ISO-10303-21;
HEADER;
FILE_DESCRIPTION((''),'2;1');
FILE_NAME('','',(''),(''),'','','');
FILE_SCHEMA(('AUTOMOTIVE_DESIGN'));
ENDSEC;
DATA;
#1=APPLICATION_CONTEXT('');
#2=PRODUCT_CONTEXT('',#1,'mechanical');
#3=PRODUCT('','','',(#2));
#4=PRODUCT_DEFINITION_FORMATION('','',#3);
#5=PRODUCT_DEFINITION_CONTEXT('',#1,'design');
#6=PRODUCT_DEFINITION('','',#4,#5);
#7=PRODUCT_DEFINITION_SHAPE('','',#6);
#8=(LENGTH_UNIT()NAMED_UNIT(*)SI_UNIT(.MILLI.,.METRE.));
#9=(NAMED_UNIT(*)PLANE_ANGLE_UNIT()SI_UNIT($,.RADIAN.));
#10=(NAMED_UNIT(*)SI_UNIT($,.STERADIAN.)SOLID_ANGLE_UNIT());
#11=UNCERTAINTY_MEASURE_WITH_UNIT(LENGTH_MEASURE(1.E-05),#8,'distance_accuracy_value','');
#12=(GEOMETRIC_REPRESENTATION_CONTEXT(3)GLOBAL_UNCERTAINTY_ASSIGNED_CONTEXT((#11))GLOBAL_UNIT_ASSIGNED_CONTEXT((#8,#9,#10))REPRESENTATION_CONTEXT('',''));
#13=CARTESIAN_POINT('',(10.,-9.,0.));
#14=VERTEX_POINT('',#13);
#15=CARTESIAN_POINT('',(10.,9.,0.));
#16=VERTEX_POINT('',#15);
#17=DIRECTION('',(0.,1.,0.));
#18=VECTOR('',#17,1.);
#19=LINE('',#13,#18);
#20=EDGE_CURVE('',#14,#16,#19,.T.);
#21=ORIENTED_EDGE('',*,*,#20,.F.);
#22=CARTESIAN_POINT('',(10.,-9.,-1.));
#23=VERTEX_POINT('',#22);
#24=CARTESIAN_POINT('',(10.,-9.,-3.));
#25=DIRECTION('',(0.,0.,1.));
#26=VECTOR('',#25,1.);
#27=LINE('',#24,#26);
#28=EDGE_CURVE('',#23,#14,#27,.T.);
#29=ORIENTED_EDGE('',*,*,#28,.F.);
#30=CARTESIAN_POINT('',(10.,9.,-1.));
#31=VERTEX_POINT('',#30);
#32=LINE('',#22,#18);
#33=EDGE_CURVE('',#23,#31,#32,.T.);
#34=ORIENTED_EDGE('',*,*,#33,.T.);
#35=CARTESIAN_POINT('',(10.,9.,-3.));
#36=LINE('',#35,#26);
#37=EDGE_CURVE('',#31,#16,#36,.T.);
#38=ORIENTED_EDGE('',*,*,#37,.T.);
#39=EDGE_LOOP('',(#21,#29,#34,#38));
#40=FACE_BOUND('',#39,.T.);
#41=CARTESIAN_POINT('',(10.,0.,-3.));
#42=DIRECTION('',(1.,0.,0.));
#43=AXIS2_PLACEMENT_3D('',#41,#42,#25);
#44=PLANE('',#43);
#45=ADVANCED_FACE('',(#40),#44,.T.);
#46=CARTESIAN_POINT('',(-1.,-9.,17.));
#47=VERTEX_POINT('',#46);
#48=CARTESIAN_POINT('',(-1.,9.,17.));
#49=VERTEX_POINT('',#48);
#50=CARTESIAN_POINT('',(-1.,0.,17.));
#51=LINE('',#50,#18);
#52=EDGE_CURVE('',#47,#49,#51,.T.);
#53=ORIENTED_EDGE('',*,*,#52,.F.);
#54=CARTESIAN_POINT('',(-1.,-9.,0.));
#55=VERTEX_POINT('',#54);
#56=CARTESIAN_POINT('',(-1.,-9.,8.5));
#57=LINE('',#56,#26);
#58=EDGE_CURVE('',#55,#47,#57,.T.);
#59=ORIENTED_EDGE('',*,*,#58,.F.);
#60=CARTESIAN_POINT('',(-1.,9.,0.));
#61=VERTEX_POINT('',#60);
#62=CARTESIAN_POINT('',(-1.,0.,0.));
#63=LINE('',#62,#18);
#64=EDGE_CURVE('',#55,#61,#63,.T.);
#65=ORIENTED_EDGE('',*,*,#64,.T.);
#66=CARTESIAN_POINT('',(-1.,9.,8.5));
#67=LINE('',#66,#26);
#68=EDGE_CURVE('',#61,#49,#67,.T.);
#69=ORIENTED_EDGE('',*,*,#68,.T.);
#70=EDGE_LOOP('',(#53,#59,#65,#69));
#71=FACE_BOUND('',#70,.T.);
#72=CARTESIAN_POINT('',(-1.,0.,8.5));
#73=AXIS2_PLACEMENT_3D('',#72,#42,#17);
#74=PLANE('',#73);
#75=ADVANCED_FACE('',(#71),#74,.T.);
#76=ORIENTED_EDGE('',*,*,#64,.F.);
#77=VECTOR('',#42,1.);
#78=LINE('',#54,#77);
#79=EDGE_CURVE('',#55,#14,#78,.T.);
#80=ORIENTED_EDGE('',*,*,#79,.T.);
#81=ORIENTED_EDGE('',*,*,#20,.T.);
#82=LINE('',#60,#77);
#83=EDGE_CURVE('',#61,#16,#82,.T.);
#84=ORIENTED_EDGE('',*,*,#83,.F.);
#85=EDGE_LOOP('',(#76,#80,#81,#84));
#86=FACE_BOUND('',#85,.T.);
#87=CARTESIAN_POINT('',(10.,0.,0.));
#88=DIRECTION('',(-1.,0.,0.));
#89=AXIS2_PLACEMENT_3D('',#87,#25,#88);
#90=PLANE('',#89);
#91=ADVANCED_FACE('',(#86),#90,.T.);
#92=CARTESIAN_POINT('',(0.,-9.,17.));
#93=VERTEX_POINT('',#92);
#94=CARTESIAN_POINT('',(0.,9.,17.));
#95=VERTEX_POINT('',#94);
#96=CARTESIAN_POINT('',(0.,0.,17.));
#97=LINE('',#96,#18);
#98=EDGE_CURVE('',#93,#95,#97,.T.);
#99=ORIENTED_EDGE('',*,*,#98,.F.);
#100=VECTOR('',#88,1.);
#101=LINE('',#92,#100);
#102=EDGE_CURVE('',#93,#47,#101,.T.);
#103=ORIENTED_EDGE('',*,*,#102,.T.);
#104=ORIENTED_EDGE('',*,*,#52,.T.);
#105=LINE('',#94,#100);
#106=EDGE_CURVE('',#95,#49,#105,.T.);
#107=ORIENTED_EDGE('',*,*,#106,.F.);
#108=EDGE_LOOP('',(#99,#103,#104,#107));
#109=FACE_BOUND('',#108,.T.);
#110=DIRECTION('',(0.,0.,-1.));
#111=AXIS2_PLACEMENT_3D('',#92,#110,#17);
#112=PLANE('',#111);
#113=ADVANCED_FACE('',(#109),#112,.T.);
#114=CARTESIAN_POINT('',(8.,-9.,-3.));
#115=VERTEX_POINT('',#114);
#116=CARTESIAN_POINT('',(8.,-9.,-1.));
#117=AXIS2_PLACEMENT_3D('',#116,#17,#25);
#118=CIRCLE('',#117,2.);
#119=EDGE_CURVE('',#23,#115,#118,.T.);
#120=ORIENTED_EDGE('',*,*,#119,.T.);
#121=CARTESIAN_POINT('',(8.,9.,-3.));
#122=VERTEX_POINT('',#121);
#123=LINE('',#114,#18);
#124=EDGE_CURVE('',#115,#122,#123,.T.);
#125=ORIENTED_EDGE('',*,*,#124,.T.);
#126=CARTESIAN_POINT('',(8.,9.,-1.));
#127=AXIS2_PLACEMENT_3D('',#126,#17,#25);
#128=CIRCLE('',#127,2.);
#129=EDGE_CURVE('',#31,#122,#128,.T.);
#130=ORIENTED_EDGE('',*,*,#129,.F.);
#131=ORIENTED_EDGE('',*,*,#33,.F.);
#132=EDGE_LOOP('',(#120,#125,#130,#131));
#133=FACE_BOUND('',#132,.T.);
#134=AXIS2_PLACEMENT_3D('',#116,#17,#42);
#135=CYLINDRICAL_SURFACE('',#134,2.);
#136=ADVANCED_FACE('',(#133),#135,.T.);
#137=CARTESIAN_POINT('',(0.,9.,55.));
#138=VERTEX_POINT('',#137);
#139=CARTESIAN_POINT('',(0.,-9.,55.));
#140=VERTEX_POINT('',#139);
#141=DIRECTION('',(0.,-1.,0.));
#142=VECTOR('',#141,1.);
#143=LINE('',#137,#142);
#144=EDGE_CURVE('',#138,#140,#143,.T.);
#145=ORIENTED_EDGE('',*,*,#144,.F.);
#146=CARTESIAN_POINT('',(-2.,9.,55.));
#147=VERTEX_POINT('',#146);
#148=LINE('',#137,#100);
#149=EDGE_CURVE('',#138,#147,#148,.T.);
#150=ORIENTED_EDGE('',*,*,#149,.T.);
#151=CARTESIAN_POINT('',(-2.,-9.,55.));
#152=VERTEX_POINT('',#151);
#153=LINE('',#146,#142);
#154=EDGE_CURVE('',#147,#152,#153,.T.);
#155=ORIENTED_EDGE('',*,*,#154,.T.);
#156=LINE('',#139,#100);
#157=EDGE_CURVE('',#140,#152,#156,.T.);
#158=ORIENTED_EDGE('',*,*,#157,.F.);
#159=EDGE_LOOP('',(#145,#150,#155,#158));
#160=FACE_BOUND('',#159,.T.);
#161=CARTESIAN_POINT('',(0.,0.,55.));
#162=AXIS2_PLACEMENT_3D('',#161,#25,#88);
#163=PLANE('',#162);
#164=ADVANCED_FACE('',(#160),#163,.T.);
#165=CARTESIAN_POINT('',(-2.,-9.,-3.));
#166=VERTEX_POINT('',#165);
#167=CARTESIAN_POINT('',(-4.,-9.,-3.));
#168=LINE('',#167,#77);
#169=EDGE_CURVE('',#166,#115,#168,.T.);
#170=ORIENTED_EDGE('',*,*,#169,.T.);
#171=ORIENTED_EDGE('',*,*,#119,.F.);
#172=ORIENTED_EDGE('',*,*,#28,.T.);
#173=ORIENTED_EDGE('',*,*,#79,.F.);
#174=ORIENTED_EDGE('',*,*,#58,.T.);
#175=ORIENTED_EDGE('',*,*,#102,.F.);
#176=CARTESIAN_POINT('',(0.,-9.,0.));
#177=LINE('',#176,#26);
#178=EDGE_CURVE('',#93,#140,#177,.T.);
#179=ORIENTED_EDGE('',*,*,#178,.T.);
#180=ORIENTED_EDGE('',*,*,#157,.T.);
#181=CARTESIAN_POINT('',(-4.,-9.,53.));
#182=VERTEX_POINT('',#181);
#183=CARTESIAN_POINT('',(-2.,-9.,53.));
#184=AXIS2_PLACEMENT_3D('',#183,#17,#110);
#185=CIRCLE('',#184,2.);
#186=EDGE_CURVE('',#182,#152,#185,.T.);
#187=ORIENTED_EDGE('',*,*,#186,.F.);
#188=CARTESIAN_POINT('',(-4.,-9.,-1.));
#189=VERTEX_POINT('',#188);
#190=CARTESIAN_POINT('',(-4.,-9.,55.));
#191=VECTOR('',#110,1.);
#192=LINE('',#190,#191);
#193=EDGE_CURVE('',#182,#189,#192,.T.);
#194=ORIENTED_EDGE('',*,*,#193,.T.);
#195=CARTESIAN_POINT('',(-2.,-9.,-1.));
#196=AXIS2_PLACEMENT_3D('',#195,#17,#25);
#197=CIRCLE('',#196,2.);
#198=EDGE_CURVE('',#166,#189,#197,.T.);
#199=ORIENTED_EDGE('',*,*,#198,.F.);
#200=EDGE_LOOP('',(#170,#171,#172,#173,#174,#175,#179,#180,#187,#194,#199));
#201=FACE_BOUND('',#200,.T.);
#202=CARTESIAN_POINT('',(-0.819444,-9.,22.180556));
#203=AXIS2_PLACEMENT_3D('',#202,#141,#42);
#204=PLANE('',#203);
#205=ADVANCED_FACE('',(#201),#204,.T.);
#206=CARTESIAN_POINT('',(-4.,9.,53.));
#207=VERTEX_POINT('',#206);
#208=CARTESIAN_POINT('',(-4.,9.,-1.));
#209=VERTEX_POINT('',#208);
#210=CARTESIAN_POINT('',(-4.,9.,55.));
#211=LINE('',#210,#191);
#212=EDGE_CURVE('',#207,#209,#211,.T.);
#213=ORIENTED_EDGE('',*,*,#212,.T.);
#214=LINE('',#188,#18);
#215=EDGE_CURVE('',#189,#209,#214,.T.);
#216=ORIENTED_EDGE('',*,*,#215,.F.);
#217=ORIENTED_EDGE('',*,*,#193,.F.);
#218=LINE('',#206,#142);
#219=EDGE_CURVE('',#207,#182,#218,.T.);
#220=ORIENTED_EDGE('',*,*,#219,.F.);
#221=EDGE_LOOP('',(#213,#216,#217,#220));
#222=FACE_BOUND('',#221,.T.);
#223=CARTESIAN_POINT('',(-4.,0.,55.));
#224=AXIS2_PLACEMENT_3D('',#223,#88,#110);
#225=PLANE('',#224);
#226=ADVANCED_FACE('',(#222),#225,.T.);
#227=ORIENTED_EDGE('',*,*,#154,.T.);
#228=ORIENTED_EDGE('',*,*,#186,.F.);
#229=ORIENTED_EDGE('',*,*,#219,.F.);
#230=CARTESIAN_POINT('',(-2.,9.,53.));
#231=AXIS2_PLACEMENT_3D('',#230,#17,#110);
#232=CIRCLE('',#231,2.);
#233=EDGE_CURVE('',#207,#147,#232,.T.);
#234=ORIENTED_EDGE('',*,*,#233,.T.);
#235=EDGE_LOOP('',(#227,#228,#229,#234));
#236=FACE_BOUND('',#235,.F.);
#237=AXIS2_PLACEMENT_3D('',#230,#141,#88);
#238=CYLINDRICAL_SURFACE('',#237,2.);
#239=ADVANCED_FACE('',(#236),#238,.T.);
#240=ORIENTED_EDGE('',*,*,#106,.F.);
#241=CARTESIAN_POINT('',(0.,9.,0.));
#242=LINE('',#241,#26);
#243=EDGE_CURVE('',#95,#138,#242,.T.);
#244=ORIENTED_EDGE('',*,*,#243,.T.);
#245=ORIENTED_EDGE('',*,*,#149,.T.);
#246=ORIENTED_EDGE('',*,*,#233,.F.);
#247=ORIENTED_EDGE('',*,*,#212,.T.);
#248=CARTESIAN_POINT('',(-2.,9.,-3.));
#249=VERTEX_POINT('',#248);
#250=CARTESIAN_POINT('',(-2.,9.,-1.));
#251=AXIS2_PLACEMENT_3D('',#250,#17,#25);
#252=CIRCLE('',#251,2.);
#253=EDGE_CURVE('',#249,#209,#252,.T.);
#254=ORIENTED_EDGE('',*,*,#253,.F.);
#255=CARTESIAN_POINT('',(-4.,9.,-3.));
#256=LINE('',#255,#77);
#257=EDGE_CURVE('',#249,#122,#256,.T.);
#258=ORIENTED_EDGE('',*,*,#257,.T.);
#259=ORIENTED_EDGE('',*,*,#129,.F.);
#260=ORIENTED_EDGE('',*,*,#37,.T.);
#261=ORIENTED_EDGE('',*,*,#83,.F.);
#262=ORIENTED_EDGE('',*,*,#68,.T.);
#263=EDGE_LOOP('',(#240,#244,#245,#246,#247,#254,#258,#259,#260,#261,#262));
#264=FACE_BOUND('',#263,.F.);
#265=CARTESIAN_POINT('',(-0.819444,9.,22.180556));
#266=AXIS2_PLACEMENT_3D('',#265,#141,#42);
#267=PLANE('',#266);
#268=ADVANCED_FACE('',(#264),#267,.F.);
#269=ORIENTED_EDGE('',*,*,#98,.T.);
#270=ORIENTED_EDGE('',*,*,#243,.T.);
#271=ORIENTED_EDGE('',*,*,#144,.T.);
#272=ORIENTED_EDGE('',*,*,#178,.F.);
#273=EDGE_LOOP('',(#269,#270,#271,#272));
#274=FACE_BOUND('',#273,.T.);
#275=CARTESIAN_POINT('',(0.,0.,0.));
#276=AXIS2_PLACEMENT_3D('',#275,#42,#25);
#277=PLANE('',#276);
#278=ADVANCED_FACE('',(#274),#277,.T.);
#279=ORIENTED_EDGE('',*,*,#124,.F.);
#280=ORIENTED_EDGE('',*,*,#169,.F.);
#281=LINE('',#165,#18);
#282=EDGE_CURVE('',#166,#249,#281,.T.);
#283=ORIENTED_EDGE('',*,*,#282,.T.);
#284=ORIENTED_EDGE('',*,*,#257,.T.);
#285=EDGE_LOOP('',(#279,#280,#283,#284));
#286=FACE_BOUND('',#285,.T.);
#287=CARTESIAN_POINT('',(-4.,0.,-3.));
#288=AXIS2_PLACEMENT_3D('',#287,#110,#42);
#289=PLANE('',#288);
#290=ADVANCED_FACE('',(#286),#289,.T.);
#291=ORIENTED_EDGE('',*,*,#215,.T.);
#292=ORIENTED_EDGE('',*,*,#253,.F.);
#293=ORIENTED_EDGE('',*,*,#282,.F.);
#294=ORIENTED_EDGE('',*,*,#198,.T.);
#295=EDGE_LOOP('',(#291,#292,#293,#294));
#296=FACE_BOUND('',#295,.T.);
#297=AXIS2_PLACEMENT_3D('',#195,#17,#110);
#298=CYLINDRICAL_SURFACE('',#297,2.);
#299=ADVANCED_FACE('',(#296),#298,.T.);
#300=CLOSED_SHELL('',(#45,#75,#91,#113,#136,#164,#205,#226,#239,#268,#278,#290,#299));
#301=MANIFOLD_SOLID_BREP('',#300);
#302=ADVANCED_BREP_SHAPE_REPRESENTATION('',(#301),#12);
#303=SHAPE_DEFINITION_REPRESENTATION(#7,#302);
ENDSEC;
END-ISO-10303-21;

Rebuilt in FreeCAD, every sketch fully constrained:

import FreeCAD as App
import Part
import Sketcher
from FreeCAD import Vector


def edges_at(feature, points):
    """Names of the edges that pass closest to the given points."""
    edges = feature.Shape.Edges
    near = lambda p: min(range(len(edges)), key=lambda i: edges[i].distToShape(Part.Vertex(*p))[0])
    return sorted({f"Edge{near(p) + 1}" for p in points})


def add_polygon(sketch, points):
    """Adds a closed chain of lines whose ends are joined by coincident constraints."""
    first, n = sketch.GeometryCount, len(points)
    for a, b in zip(points, points[1:] + points[:1]):
        sketch.addGeometry(Part.LineSegment(App.Vector(*a, 0), App.Vector(*b, 0)), False)
    for i in range(n):
        sketch.addConstraint(Sketcher.Constraint("Coincident", first + i, 2, first + (i + 1) % n, 1))

doc = App.newDocument("Part")
body = doc.addObject("PartDesign::Body", "Body")

sketch1 = doc.addObject("Sketcher::SketchObject", "Sketch")
body.addObject(sketch1)
sketch1.AttachmentSupport = (doc.XZ_Plane, [""])
sketch1.MapMode = "FlatFace"
add_polygon(sketch1, [(10, 0), (0, 0), (0, 55), (-4, 55), (-4, -3), (10, -3)])
sketch1.addConstraint([
    Sketcher.Constraint("Horizontal", 0),
    Sketcher.Constraint("Vertical", 1),
    Sketcher.Constraint("Horizontal", 2),
    Sketcher.Constraint("Vertical", 3),
    Sketcher.Constraint("Horizontal", 4),
    Sketcher.Constraint("Vertical", 5),
    Sketcher.Constraint("Coincident", 0, 2, -1, 1),
    Sketcher.Constraint("DistanceX", 0, 2, 0, 1, 10.0),
    Sketcher.Constraint("DistanceX", 2, 2, 2, 1, 4.0),
    Sketcher.Constraint("DistanceY", 1, 1, 1, 2, 55.0),
    Sketcher.Constraint("DistanceY", 3, 2, 3, 1, 58.0),
])
pad1 = doc.addObject("PartDesign::Pad", "Pad")
body.addObject(pad1)
pad1.Profile = sketch1
pad1.Length = 18
pad1.Midplane = True
doc.recompute()

fillet = doc.addObject("PartDesign::Fillet", "Fillet")
body.addObject(fillet)
fillet.Base = (pad1, edges_at(pad1, [(-4, 0, 55), (-4, 0, -3), (10, 0, -3)]))
fillet.Radius = 2

sketch2 = doc.addObject("Sketcher::SketchObject", "Sketch001")
body.addObject(sketch2)
sketch2.AttachmentSupport = (doc.YZ_Plane, [""])
sketch2.MapMode = "FlatFace"
add_polygon(sketch2, [(-9, 17), (-9, 0), (9, 0), (9, 17)])
sketch2.addConstraint([
    Sketcher.Constraint("Vertical", 0),
    Sketcher.Constraint("Horizontal", 1),
    Sketcher.Constraint("Vertical", 2),
    Sketcher.Constraint("Horizontal", 3),
    Sketcher.Constraint("Symmetric", 0, 2, 1, 2, -1, 1),
    Sketcher.Constraint("DistanceX", 1, 1, 1, 2, 18.0),
    Sketcher.Constraint("DistanceY", 0, 2, 0, 1, 17.0),
])
pocket1 = doc.addObject("PartDesign::Pocket", "Pocket")
body.addObject(pocket1)
pocket1.Profile = sketch2
pocket1.Length = 1

doc.recompute()
